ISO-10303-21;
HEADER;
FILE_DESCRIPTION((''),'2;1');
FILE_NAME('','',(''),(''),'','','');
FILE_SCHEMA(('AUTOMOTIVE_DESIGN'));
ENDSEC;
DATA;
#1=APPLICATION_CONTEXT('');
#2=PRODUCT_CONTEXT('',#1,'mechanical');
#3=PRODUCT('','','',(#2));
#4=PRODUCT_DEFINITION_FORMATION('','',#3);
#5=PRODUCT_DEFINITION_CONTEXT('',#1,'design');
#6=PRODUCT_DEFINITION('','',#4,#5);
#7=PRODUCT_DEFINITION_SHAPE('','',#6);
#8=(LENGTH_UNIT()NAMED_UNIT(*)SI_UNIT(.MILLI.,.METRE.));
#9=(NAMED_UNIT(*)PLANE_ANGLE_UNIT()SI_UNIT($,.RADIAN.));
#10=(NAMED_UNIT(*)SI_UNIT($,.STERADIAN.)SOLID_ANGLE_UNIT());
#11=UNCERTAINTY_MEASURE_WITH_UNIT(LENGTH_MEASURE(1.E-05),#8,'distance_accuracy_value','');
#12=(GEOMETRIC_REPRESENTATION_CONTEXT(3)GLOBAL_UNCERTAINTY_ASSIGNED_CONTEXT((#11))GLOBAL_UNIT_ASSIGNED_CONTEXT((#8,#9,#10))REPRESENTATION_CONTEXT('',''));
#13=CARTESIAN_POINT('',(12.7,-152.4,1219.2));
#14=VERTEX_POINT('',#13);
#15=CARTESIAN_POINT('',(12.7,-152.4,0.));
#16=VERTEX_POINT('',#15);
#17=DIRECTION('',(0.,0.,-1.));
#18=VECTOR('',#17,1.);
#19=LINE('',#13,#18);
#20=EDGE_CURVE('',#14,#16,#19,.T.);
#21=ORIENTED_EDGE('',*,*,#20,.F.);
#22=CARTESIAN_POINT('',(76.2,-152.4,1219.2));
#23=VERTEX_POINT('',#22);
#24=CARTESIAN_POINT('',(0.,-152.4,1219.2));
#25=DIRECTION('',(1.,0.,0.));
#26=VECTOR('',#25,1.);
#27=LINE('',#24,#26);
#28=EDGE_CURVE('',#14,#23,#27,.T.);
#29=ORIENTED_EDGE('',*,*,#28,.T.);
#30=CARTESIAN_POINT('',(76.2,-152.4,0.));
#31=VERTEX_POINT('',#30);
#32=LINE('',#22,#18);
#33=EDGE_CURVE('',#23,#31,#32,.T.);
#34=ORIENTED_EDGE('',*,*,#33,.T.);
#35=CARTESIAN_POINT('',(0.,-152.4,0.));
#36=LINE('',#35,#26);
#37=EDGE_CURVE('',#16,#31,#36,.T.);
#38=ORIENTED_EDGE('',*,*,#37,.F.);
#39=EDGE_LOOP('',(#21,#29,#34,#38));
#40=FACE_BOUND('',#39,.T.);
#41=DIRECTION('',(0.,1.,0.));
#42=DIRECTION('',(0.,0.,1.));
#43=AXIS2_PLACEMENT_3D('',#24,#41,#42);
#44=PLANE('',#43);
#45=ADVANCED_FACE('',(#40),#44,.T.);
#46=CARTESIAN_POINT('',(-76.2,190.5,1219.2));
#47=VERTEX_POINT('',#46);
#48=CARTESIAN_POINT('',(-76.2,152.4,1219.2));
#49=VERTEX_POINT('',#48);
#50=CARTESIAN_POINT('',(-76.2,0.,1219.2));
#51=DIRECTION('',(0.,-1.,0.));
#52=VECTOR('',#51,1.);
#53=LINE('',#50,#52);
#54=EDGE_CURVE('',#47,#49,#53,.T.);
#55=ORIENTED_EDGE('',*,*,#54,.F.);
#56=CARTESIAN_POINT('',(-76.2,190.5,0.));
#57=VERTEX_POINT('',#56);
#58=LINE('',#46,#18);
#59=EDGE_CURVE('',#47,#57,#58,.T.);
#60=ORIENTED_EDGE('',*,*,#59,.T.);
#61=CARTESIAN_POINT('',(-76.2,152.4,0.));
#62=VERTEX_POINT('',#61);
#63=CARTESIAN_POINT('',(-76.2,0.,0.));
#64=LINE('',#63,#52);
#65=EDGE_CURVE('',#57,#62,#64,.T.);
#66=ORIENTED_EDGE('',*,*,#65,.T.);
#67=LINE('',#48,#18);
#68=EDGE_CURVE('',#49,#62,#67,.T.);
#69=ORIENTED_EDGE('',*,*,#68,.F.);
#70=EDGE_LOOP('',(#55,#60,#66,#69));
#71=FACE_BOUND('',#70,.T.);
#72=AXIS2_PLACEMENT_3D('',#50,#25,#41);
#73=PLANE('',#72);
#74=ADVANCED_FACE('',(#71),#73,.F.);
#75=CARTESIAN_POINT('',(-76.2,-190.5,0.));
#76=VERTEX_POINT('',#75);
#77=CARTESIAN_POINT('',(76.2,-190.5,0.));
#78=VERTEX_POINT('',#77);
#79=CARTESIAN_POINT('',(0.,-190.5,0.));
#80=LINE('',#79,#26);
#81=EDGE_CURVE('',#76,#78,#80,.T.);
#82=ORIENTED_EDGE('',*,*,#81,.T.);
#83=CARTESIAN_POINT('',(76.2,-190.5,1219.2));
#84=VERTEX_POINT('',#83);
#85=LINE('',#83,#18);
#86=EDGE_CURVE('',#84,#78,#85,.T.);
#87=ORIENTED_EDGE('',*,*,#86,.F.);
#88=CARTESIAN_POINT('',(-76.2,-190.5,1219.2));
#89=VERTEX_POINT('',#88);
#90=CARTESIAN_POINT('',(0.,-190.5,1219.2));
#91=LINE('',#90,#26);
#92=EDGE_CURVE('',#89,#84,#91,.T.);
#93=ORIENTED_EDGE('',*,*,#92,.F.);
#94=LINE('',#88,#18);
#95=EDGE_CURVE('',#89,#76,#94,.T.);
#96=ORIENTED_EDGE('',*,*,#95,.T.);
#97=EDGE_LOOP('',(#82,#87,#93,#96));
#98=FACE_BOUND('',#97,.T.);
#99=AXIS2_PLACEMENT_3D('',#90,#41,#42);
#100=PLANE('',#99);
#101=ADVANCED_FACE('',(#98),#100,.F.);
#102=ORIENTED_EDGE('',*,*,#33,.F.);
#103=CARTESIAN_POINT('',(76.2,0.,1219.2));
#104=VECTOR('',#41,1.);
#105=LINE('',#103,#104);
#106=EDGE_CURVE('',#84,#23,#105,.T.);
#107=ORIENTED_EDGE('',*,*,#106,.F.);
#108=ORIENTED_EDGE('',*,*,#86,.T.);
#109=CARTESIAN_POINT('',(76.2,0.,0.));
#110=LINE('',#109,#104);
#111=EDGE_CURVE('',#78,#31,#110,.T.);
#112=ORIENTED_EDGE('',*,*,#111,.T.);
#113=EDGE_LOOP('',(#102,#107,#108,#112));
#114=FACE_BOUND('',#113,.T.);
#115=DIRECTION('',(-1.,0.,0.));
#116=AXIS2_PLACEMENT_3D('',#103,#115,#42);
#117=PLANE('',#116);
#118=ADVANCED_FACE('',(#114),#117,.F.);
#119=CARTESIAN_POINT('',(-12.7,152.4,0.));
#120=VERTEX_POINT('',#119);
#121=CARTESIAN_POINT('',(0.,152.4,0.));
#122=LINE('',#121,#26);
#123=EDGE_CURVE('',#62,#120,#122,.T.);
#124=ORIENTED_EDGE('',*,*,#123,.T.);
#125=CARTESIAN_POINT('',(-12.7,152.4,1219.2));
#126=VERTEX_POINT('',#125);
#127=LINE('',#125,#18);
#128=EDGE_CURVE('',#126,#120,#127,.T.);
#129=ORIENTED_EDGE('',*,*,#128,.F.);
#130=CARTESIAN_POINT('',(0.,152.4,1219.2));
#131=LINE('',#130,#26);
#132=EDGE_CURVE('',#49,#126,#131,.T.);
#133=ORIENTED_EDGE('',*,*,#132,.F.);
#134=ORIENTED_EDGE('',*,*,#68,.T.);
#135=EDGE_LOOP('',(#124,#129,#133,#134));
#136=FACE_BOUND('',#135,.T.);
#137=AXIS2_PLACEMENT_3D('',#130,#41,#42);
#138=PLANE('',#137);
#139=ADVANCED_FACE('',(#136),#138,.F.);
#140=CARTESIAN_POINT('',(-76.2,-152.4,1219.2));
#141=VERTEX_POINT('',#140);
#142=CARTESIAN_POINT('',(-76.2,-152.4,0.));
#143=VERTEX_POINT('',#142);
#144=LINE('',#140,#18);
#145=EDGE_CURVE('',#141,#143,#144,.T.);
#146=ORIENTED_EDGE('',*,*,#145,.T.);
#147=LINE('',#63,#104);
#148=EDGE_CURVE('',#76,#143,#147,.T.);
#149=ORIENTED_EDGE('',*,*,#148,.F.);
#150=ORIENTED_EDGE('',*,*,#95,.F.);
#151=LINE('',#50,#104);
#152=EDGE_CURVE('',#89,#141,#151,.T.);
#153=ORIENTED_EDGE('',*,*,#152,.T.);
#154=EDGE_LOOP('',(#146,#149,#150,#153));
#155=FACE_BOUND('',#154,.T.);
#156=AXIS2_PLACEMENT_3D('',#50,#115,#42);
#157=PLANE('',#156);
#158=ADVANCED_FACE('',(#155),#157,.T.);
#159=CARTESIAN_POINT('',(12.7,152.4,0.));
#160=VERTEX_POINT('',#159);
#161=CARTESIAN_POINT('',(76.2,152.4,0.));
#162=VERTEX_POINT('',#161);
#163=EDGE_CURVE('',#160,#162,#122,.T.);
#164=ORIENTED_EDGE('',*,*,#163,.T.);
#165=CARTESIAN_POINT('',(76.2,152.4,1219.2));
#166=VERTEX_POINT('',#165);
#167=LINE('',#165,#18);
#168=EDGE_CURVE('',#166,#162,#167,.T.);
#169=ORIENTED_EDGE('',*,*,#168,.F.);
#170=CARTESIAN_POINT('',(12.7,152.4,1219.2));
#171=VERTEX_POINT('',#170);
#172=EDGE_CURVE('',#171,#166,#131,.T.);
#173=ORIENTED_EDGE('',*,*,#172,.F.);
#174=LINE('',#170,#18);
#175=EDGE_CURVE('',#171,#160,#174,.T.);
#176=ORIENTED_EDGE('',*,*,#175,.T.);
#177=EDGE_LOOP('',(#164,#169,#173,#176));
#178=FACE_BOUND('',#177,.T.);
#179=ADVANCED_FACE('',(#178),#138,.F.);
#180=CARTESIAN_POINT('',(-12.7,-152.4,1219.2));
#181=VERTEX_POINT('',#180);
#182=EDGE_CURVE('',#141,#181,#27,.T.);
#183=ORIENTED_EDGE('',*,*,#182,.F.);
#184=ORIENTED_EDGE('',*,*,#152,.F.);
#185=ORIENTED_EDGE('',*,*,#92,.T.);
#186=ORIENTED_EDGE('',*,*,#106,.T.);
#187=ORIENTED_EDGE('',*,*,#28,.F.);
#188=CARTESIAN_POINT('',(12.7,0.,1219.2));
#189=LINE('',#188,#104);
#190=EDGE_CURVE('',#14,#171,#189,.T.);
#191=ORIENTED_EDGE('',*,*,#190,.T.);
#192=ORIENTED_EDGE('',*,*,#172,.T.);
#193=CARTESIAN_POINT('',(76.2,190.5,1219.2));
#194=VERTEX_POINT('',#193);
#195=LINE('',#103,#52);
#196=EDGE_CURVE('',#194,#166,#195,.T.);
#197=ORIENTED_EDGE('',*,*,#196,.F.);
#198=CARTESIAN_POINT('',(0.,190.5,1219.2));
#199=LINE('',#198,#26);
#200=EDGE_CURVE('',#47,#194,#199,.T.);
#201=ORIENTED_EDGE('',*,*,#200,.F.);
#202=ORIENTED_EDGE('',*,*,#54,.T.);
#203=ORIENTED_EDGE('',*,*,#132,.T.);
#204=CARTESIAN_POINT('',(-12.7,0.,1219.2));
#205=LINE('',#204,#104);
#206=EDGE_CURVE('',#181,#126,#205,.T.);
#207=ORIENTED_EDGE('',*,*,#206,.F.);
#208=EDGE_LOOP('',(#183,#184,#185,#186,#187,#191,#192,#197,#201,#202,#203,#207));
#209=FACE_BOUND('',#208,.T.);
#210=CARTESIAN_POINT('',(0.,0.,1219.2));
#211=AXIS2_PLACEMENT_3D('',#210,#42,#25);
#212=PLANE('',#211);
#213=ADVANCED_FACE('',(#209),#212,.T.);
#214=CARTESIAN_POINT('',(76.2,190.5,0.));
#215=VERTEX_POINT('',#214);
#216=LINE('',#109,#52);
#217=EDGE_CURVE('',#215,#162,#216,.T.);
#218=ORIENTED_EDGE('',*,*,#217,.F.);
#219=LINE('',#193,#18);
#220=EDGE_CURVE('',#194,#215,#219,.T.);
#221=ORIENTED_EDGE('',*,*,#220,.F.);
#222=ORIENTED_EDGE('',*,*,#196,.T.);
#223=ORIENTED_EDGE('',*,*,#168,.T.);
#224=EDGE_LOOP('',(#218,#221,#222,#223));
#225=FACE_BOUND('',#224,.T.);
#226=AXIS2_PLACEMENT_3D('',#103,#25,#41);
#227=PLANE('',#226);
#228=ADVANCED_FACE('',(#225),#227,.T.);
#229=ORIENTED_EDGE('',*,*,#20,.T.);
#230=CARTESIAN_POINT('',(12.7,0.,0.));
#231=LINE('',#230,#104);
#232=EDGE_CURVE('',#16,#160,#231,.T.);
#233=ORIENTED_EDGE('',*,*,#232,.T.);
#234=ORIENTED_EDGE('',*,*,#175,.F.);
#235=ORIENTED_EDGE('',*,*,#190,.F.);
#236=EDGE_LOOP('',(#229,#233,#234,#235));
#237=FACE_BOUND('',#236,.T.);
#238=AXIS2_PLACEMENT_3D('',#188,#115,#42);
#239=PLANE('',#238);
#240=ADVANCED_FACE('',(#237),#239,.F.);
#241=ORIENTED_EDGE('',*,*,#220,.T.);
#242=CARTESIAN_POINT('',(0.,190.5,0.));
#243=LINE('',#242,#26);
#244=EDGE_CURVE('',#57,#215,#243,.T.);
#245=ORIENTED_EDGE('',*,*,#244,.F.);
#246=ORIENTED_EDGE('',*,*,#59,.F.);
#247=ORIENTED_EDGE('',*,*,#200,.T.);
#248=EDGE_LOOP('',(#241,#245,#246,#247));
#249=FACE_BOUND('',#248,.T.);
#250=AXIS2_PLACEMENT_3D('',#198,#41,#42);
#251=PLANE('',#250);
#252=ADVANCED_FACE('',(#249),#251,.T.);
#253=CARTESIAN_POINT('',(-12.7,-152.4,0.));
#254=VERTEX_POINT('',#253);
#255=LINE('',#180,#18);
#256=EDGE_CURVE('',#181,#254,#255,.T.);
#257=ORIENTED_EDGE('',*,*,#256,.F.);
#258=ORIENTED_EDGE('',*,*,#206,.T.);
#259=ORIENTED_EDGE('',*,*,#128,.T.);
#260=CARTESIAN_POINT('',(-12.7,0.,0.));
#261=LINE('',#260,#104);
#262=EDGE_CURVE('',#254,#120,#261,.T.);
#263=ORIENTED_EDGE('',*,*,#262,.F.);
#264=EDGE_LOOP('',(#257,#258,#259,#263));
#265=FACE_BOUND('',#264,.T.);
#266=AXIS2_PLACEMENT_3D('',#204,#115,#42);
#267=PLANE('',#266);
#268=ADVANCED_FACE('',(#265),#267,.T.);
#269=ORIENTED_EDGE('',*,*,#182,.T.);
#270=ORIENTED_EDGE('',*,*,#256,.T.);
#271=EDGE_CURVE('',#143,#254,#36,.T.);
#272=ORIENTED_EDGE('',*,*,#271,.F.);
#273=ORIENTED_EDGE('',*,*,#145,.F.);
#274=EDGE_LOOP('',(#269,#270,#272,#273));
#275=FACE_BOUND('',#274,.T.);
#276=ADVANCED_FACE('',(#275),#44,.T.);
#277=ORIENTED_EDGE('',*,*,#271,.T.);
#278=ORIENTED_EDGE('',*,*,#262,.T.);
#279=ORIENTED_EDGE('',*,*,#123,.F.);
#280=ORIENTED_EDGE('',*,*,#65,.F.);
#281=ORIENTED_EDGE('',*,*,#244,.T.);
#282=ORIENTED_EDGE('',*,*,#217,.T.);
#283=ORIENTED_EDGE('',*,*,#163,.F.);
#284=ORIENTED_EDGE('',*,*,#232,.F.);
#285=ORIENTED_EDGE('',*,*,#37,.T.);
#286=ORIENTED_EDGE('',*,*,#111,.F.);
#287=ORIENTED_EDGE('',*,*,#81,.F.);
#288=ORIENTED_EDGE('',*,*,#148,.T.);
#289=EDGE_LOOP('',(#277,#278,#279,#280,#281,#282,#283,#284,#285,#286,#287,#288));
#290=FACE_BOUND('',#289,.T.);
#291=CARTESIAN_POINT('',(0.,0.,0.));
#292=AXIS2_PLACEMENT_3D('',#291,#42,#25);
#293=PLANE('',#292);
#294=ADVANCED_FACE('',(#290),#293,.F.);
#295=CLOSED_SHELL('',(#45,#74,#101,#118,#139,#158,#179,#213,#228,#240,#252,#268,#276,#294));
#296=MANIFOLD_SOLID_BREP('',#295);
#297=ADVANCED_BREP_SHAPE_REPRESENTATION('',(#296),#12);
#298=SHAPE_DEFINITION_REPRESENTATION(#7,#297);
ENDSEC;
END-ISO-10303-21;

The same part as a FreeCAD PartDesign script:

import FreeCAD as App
import Part
import Sketcher
from FreeCAD import Vector
Q = App.Units.Quantity


def add_polygon(sketch, points):
    """Adds a closed chain of lines whose ends are joined by coincident constraints."""
    first, n = sketch.GeometryCount, len(points)
    for a, b in zip(points, points[1:] + points[:1]):
        sketch.addGeometry(Part.LineSegment(App.Vector(*a, 0), App.Vector(*b, 0)), False)
    for i in range(n):
        sketch.addConstraint(Sketcher.Constraint("Coincident", first + i, 2, first + (i + 1) % n, 1))

doc = App.newDocument("Part")
body = doc.addObject("PartDesign::Body", "Body")

sketch1 = body.newObject("Sketcher::SketchObject", "Sketch")
sketch1.AttachmentSupport = (doc.getObject("XY_Plane"), [""])
sketch1.MapMode = "FlatFace"
add_polygon(sketch1, [(-76.2, 152.4), (-12.7, 152.4), (-12.7, -152.4), (-76.2, -152.4), (-76.2, -190.5), (76.2, -190.5), (76.2, -152.4), (12.7, -152.4), (12.7, 152.4), (76.2, 152.4), (76.2, 190.5), (-76.2, 190.5)])
sketch1.addConstraint([
    Sketcher.Constraint("Horizontal", 0),
    Sketcher.Constraint("Vertical", 1),
    Sketcher.Constraint("Horizontal", 2),
    Sketcher.Constraint("Vertical", 3),
    Sketcher.Constraint("Horizontal", 4),
    Sketcher.Constraint("Vertical", 5),
    Sketcher.Constraint("Horizontal", 6),
    Sketcher.Constraint("Vertical", 7),
    Sketcher.Constraint("Horizontal", 8),
    Sketcher.Constraint("Vertical", 9),
    Sketcher.Constraint("Horizontal", 10),
    Sketcher.Constraint("Vertical", 11),
    Sketcher.Constraint("Symmetric", 0, 2, 6, 2, -1, 1),
    Sketcher.Constraint("Symmetric", 2, 2, 8, 2, -1, 1),
    Sketcher.Constraint("Symmetric", 4, 2, 10, 2, -1, 1),
    Sketcher.Constraint("Symmetric", 2, 2, 5, 2, -2),
    Sketcher.Constraint("DistanceX", 4, 1, 4, 2, Q("6 in")),
    Sketcher.Constraint("DistanceY", 1, 2, 1, 1, Q("12 in")),
    Sketcher.Constraint("DistanceX", 0, 1, 0, 2, Q("2.5 in")),
    Sketcher.Constraint("DistanceY", 3, 2, 3, 1, Q("1.5 in")),
])
pad1 = body.newObject("PartDesign::Pad", "Pad")
pad1.Profile = sketch1
pad1.Length = Q("48 in")

doc.recompute()
